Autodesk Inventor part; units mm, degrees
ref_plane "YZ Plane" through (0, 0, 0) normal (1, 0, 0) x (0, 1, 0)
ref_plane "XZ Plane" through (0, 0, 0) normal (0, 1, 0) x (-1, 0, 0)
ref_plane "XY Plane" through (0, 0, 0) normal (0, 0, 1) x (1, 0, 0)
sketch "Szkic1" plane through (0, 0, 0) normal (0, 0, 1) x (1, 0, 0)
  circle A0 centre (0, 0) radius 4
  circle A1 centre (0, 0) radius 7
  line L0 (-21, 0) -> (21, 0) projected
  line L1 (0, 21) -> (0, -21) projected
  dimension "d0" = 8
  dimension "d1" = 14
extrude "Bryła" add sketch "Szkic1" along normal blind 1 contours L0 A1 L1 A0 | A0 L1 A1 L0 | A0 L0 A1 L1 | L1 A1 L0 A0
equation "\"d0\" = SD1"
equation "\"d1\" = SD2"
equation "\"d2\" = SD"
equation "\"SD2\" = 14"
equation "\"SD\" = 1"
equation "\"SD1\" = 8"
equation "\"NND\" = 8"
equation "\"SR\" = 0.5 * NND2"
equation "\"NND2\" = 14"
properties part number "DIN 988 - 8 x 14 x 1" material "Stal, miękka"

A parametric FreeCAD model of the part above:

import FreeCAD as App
import Part
import Sketcher
from FreeCAD import Vector

doc = App.newDocument("Part")
body = doc.addObject("PartDesign::Body", "Body")

sketch1 = body.newObject("Sketcher::SketchObject", "Sketch")
sketch1.AttachmentSupport = (doc.getObject("XY_Plane"), [""])
sketch1.MapMode = "FlatFace"
sketch1.addGeometry(Part.Circle(Vector(0, 0, 0), Vector(0, 0, 1), 7), False)
sketch1.addGeometry(Part.Circle(Vector(0, 0, 0), Vector(0, 0, 1), 4), False)
sketch1.addConstraint(Sketcher.Constraint("Coincident", 0, 3, -1, 1))
sketch1.addConstraint(Sketcher.Constraint("Coincident", 1, 3, -1, 1))
sketch1.addConstraint(Sketcher.Constraint("Diameter", 0, 14.0))
sketch1.addConstraint(Sketcher.Constraint("Diameter", 1, 8.0))
pad1 = body.newObject("PartDesign::Pad", "Pad")
pad1.Profile = sketch1
pad1.Length = 1

doc.recompute()
